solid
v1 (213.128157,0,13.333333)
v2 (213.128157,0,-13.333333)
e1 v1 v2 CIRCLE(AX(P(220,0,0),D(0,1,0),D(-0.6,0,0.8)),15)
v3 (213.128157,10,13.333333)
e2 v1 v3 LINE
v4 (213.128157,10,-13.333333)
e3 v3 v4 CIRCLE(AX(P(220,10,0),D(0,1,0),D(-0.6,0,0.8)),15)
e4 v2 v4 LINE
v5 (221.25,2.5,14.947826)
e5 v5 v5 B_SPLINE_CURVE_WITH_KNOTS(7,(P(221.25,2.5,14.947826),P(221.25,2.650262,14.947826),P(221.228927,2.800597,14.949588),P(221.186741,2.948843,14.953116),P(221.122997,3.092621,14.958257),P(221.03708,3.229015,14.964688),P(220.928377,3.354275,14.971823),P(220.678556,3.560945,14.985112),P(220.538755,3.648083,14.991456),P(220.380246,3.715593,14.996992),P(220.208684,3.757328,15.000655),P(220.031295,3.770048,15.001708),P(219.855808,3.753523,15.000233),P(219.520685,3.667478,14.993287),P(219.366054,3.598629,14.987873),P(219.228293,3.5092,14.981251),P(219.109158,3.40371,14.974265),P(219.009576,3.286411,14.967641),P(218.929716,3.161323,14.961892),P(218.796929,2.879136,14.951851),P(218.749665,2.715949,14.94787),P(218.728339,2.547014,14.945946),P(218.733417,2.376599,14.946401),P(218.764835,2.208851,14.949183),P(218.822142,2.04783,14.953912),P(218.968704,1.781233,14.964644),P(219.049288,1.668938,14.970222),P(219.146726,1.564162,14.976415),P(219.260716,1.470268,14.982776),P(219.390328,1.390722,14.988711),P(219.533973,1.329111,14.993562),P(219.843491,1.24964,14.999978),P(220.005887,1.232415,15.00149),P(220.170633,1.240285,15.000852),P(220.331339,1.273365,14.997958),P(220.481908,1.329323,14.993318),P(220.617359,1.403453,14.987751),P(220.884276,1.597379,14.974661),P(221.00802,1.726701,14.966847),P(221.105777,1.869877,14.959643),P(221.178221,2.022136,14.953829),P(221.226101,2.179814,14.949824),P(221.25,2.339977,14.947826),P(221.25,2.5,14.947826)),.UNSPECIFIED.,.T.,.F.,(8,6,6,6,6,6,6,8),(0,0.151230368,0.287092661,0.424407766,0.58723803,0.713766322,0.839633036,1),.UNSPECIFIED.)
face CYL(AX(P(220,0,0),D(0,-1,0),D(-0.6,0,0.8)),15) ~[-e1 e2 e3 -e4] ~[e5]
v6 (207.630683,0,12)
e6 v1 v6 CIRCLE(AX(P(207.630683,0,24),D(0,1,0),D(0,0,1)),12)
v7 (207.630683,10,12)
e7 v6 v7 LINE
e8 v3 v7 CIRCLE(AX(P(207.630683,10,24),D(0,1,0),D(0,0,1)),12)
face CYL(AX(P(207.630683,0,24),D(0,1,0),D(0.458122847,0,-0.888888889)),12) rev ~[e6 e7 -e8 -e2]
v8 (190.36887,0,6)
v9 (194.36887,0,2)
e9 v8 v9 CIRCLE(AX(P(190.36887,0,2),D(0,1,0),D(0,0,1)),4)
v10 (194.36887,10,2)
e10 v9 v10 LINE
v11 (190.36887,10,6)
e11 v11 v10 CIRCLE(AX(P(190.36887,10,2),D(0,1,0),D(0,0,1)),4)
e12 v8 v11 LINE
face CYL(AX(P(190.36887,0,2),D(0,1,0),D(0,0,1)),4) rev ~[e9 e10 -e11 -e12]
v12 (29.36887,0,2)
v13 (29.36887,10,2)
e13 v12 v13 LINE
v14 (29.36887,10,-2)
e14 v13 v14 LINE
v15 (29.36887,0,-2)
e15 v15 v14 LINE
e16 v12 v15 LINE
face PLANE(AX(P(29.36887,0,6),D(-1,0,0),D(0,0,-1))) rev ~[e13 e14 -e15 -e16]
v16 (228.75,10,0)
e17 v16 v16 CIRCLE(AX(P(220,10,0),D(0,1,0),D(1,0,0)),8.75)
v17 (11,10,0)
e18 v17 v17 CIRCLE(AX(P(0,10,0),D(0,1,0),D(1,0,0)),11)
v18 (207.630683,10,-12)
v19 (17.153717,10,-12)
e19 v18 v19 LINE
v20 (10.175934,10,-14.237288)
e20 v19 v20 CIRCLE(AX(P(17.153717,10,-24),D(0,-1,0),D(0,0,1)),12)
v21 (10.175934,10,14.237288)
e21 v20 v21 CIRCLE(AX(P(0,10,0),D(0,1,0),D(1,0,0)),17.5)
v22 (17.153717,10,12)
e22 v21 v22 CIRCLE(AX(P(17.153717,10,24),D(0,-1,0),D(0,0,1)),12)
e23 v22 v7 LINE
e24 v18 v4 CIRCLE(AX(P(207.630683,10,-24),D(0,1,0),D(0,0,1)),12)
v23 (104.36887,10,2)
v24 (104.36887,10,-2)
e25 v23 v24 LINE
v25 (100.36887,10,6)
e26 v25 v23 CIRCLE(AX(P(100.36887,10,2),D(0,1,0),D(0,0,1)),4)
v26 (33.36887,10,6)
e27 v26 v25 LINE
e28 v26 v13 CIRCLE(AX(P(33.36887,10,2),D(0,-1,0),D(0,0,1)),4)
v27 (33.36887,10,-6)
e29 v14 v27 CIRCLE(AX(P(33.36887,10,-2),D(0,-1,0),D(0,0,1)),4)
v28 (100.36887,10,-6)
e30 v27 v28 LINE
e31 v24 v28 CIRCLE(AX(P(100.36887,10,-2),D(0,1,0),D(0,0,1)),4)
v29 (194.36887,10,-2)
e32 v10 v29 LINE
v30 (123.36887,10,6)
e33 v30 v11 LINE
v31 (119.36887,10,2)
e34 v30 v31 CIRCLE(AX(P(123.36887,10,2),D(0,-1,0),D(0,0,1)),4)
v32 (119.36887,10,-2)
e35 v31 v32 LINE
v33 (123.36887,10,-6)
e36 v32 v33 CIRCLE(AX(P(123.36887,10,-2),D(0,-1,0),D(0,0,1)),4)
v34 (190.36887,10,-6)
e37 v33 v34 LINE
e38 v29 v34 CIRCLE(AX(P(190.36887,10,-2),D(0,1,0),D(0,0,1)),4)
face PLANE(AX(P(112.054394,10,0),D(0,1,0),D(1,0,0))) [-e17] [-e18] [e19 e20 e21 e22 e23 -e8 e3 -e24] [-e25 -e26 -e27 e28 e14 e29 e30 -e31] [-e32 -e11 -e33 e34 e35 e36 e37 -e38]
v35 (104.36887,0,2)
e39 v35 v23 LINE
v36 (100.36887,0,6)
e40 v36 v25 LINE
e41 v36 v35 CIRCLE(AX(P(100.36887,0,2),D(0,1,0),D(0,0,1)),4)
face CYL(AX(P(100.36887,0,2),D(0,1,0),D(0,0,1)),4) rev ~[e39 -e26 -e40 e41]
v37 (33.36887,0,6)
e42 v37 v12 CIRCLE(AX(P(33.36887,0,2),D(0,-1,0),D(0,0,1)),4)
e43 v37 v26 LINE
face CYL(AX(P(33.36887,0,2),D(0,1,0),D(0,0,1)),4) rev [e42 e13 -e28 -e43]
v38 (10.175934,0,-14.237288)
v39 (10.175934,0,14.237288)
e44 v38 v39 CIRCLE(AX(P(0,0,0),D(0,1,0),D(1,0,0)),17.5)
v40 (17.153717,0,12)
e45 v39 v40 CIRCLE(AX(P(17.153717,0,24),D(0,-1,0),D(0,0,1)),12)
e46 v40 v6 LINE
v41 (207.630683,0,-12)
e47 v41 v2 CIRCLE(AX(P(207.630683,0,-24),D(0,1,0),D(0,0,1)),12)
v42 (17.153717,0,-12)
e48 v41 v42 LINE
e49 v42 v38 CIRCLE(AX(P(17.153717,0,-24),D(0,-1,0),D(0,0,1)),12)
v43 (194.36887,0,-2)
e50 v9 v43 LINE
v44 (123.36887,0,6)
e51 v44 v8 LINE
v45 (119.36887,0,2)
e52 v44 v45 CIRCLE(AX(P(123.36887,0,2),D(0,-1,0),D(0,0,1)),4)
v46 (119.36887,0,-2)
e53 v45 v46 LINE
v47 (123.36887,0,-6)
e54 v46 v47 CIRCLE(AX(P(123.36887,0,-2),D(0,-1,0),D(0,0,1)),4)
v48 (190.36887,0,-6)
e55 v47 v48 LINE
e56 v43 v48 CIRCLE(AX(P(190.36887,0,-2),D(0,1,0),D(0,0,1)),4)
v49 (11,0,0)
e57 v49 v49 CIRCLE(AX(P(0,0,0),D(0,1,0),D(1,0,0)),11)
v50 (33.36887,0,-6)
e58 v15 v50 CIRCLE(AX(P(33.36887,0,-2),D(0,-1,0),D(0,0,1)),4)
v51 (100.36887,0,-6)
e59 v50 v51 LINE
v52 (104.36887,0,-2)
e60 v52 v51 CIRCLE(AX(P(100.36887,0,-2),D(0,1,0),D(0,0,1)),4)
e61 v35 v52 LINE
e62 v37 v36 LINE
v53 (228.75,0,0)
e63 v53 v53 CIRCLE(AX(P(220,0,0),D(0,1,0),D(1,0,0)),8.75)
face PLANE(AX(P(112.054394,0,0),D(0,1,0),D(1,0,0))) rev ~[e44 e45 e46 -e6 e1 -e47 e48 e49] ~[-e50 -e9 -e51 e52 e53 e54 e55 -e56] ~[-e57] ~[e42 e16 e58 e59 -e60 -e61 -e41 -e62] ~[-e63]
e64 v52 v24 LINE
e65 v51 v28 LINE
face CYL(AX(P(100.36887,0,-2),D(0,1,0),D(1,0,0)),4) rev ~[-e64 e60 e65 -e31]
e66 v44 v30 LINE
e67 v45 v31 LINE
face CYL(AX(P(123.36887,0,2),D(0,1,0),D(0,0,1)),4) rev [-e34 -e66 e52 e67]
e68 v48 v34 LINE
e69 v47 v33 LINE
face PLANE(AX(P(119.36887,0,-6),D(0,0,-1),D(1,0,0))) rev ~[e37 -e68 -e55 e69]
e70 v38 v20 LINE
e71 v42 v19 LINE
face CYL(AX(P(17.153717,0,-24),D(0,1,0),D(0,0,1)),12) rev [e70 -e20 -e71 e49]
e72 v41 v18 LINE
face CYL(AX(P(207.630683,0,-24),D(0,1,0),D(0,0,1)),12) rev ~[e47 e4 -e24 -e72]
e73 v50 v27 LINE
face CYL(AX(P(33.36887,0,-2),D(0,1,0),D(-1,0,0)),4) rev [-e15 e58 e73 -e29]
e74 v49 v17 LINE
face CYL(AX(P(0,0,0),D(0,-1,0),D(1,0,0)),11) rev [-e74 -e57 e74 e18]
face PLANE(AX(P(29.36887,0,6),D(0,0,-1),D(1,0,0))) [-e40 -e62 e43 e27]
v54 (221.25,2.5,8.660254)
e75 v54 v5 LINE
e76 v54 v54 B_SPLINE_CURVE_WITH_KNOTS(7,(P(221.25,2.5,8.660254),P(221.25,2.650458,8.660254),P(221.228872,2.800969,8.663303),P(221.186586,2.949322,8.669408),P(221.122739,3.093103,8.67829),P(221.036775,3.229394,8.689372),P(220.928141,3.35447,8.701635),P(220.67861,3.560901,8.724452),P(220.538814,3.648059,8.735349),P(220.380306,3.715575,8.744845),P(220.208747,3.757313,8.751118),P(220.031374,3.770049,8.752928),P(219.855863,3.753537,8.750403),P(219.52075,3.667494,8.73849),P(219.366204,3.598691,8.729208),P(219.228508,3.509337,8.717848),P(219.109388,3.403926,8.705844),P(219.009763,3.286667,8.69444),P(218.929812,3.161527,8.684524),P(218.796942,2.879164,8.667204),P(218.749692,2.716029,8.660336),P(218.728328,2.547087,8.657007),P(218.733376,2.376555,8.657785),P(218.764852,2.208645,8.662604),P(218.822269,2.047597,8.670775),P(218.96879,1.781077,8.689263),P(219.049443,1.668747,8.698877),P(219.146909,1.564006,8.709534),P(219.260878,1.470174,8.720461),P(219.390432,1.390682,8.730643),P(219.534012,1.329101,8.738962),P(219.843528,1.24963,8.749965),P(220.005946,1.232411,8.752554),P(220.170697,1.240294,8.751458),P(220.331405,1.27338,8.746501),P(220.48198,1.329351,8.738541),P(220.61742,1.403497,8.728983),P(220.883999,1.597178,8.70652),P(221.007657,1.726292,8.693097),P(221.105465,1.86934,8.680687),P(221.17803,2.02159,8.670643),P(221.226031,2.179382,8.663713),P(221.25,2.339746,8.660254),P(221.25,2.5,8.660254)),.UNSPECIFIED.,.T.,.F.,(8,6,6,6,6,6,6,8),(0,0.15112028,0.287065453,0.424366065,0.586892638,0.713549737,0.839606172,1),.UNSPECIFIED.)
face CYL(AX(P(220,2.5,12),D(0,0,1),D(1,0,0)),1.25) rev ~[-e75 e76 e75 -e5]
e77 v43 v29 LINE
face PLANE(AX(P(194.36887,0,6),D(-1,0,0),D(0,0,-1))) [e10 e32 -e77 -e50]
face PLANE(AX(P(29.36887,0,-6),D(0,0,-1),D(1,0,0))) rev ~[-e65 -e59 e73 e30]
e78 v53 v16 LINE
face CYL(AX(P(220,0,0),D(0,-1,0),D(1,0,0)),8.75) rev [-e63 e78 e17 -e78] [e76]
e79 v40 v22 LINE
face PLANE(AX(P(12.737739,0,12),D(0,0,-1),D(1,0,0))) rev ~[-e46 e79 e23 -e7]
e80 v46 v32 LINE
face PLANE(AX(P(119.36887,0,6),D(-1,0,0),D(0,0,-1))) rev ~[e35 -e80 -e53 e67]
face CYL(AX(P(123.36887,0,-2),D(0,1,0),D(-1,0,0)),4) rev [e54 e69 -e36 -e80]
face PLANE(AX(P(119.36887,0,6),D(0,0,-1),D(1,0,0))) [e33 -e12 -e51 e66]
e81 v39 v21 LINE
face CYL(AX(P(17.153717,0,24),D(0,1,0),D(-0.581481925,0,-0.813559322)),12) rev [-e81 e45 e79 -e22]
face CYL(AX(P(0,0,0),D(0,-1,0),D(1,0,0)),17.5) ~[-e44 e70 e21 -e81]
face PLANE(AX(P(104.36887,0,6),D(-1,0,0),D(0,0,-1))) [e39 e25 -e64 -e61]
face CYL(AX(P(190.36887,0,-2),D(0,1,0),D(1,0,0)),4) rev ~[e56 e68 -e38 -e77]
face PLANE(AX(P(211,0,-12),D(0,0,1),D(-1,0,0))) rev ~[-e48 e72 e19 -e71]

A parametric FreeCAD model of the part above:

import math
import FreeCAD as App
import Part
import Sketcher


def edges_at(feature, points):
    """Names of the edges that pass closest to the given points."""
    edges = feature.Shape.Edges
    near = lambda p: min(range(len(edges)), key=lambda i: edges[i].distToShape(Part.Vertex(*p))[0])
    return sorted({f"Edge{near(p) + 1}" for p in points})

doc = App.newDocument("Part")
body = doc.addObject("PartDesign::Body", "Body")

sketch1 = doc.addObject("Sketcher::SketchObject", "Sketch")
body.addObject(sketch1)
sketch1.AttachmentSupport = (doc.XZ_Plane, [""])
sketch1.MapMode = "FlatFace"
sketch1.addGeometry([
    Part.LineSegment(App.Vector(211, -12, 0), App.Vector(13, -12, 0)),
    Part.ArcOfCircle(Part.Circle(App.Vector(0, 0, 0), App.Vector(0, 0, 1), 18), math.radians(43), math.radians(317)),
    Part.LineSegment(App.Vector(13, 12, 0), App.Vector(211, 12, 0)),
    Part.ArcOfCircle(Part.Circle(App.Vector(220, 0, 0), App.Vector(0, 0, 1), 15), math.radians(-127), math.radians(127)),
    Part.Circle(App.Vector(0, 0, 0), App.Vector(0, 0, 1), 11),
    Part.LineSegment(App.Vector(104, 6, 0), App.Vector(29, 6, 0)),
    Part.LineSegment(App.Vector(29, 6, 0), App.Vector(29, -6, 0)),
    Part.LineSegment(App.Vector(29, -6, 0), App.Vector(104, -6, 0)),
    Part.LineSegment(App.Vector(104, -6, 0), App.Vector(104, 6, 0)),
    Part.LineSegment(App.Vector(194, 6, 0), App.Vector(119, 6, 0)),
    Part.LineSegment(App.Vector(119, 6, 0), App.Vector(119, -6, 0)),
    Part.LineSegment(App.Vector(119, -6, 0), App.Vector(194, -6, 0)),
    Part.LineSegment(App.Vector(194, -6, 0), App.Vector(194, 6, 0)),
    Part.Circle(App.Vector(220, 0, 0), App.Vector(0, 0, 1), 9),
], False)
sketch1.addConstraint([
    Sketcher.Constraint("Coincident", 0, 2, 1, 2),
    Sketcher.Constraint("Coincident", 1, 1, 2, 1),
    Sketcher.Constraint("Coincident", 2, 2, 3, 2),
    Sketcher.Constraint("Coincident", 3, 1, 0, 1),
    Sketcher.Constraint("Coincident", 5, 2, 6, 1),
    Sketcher.Constraint("Coincident", 6, 2, 7, 1),
    Sketcher.Constraint("Coincident", 7, 2, 8, 1),
    Sketcher.Constraint("Coincident", 8, 2, 5, 1),
    Sketcher.Constraint("Coincident", 9, 2, 10, 1),
    Sketcher.Constraint("Coincident", 10, 2, 11, 1),
    Sketcher.Constraint("Coincident", 11, 2, 12, 1),
    Sketcher.Constraint("Coincident", 12, 2, 9, 1),
    Sketcher.Constraint("Horizontal", 0),
    Sketcher.Constraint("Horizontal", 2),
    Sketcher.Constraint("Horizontal", 5),
    Sketcher.Constraint("Vertical", 6),
    Sketcher.Constraint("Horizontal", 7),
    Sketcher.Constraint("Vertical", 8),
    Sketcher.Constraint("Horizontal", 9),
    Sketcher.Constraint("Vertical", 10),
    Sketcher.Constraint("Horizontal", 11),
    Sketcher.Constraint("Vertical", 12),
    Sketcher.Constraint("Coincident", 1, 3, -1, 1),
    Sketcher.Constraint("Coincident", 4, 3, -1, 1),
    Sketcher.Constraint("Coincident", 13, 3, 3, 3),
    Sketcher.Constraint("Symmetric", 2, 2, 3, 1, -1),
    Sketcher.Constraint("Horizontal", 8, 2, 9, 2),
    Sketcher.Constraint("Horizontal", 7, 2, 10, 2),
    Sketcher.Constraint("Equal", 7, 9),
    Sketcher.Constraint("Diameter", 4, 22.0),
    Sketcher.Constraint("Radius", 3, 15.0),
    Sketcher.Constraint("Diameter", 13, 17.5),
    Sketcher.Constraint("Radius", 1, 17.5),
    Sketcher.Constraint("DistanceX", 5, 2, 5, 1, 75.0),
    Sketcher.Constraint("DistanceY", 6, 2, 6, 1, 12.0),
    Sketcher.Constraint("DistanceX", -1, 1, 3, 3, 220.0),
    Sketcher.Constraint("DistanceY", 0, 2, -1, 1, 12.0),
    Sketcher.Constraint("DistanceY", -1, 1, 5, 2, 6.0),
    Sketcher.Constraint("DistanceX", 8, 2, 9, 2, 15.0),
    Sketcher.Constraint("DistanceX", -1, 1, 5, 2, 29.36887),
])
pad1 = doc.addObject("PartDesign::Pad", "Pad")
body.addObject(pad1)
pad1.Profile = sketch1
pad1.Length = 10
pad1.Reversed = True
doc.recompute()

fillet = doc.addObject("PartDesign::Fillet", "Fillet")
body.addObject(fillet)
fillet.Base = (pad1, edges_at(pad1, [
    (119.369, 5, -6),
    (119.369, 5, 6),
    (194.369, 5, 6),
    (194.369, 5, -6),
    (29.369, 5, -6),
    (29.369, 5, 6),
    (104.369, 5, 6),
    (104.369, 5, -6),
]))
fillet.Radius = 4
doc.recompute()

fillet2 = doc.addObject("PartDesign::Fillet", "Fillet001")
body.addObject(fillet2)
fillet2.Base = (fillet, edges_at(fillet, [
    (12.738, 5, 12),
    (12.738, 5, -12),
    (211, 5, -12),
    (211, 5, 12),
]))
fillet2.Radius = 12

sketch2 = doc.addObject("Sketcher::SketchObject", "Sketch001")
body.addObject(sketch2)
sketch2.AttachmentSupport = (doc.XY_Plane, [""])
sketch2.MapMode = "FlatFace"
sketch2.AttachmentOffset = App.Placement(App.Vector(0, 0, 12), App.Rotation())
sketch2.addGeometry(Part.Circle(App.Vector(220, 2.5, 0), App.Vector(0, 0, 1), 1.2), False)
sketch2.addConstraint([
    Sketcher.Constraint("Diameter", 0, 2.5),
    Sketcher.Constraint("DistanceX", -1, 1, 0, 3, 220.0),
    Sketcher.Constraint("DistanceY", -1, 1, 0, 3, 2.5),
])
pocket1 = doc.addObject("PartDesign::Pocket", "Pocket")
body.addObject(pocket1)
pocket1.Profile = sketch2
pocket1.Length = 18
pocket1.Midplane = True

doc.recompute()
